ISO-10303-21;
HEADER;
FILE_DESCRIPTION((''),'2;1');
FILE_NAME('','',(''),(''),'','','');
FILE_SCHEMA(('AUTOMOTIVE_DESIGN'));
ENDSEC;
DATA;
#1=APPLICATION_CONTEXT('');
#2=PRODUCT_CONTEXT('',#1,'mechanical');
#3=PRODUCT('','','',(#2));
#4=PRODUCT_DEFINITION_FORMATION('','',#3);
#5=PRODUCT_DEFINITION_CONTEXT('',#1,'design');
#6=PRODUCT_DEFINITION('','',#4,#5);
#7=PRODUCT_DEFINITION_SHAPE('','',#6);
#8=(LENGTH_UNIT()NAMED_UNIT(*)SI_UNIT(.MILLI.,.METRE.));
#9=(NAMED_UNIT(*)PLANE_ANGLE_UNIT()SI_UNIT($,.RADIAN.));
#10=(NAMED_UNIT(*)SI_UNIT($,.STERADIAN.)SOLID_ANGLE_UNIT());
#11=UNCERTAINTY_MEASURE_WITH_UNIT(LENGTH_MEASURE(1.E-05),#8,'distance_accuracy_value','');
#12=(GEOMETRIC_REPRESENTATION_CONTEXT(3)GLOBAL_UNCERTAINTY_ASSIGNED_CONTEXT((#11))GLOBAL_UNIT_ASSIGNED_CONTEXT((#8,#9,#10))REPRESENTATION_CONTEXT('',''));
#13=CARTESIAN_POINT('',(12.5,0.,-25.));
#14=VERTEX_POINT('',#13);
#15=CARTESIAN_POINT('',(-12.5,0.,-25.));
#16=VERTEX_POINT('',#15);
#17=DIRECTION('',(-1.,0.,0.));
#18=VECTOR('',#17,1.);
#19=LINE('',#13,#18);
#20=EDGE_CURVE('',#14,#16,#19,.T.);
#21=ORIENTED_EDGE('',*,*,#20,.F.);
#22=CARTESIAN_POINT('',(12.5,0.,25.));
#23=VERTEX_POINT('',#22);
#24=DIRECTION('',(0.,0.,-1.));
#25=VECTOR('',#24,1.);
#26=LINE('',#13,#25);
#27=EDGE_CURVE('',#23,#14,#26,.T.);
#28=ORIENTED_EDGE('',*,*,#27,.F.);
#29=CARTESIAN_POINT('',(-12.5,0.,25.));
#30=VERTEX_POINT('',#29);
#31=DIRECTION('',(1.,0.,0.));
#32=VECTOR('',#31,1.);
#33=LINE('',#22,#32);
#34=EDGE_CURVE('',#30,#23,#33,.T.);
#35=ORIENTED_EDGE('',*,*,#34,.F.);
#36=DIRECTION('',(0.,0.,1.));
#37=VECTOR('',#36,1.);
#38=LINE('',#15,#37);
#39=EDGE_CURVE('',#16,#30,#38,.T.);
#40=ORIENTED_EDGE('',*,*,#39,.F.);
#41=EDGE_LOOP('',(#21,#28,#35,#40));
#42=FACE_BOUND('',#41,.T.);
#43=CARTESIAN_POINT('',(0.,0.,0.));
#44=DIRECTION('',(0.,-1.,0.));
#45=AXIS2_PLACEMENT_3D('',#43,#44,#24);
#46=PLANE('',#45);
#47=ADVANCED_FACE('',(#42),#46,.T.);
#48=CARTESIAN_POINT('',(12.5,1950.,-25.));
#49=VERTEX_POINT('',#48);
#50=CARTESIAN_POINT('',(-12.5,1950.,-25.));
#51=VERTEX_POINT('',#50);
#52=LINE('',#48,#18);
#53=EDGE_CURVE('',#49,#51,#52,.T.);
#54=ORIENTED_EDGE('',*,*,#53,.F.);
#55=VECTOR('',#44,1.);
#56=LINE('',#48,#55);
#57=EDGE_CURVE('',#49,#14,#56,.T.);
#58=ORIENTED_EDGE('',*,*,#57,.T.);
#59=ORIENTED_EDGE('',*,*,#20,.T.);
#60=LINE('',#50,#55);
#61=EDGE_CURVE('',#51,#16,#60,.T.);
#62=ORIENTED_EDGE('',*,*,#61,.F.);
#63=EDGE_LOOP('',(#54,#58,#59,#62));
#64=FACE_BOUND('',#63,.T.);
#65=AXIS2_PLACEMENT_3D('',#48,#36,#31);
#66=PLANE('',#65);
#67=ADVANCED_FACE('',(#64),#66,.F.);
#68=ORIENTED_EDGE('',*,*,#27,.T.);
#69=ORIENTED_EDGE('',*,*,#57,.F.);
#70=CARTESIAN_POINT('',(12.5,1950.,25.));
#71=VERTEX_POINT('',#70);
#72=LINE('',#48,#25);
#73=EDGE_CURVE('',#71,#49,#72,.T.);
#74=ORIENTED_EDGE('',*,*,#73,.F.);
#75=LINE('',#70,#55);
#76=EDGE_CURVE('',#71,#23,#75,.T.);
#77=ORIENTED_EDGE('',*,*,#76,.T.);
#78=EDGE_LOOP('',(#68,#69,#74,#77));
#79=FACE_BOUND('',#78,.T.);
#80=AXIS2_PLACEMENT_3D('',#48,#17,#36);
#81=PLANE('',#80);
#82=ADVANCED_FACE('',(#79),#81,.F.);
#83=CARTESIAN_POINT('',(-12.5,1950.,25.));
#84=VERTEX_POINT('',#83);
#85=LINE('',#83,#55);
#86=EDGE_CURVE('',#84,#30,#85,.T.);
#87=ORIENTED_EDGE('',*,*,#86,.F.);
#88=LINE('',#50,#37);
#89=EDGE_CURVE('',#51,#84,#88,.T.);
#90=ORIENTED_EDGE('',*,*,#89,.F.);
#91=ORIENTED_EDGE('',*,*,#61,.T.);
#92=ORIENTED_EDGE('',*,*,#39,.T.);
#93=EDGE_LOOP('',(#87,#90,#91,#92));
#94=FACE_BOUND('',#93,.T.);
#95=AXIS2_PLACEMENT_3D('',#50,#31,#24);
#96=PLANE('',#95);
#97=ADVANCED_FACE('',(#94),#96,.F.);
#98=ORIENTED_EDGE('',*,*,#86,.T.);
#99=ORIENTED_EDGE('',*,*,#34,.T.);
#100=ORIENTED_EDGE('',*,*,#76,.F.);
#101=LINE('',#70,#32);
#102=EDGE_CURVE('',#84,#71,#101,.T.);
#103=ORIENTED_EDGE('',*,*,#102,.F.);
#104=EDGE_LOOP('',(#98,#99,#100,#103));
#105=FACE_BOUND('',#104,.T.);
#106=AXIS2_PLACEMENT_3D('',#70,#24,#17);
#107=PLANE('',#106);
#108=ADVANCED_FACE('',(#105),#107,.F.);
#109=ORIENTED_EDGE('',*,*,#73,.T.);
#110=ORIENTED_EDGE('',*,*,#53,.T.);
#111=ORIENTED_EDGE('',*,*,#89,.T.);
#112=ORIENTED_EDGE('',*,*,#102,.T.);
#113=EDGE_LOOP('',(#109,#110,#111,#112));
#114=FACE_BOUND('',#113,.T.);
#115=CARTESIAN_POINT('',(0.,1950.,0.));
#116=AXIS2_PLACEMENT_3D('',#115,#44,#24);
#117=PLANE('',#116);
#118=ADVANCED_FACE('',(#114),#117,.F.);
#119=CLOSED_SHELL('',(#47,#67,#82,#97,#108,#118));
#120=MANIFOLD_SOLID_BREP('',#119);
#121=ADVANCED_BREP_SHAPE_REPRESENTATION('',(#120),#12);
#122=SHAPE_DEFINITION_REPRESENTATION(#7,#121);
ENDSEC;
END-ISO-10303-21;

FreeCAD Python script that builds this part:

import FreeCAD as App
import Part
import Sketcher
from FreeCAD import Vector

doc = App.newDocument("Part")
body = doc.addObject("PartDesign::Body", "Body")

# Sketch on XZ plane
sketch1 = body.newObject("Sketcher::SketchObject", "Sketch")
sketch1.AttachmentSupport = (doc.getObject("XZ_Plane"), [""])
sketch1.MapMode = "FlatFace"
sketch1.addGeometry(Part.LineSegment(Vector(-12.5, -25, 0), Vector(-12.5, 25, 0)), False)
sketch1.addGeometry(Part.LineSegment(Vector(-12.5, 25, 0), Vector(12.5, 25, 0)), False)
sketch1.addGeometry(Part.LineSegment(Vector(12.5, 25, 0), Vector(12.5, -25, 0)), False)
sketch1.addGeometry(Part.LineSegment(Vector(12.5, -25, 0), Vector(-12.5, -25, 0)), False)
sketch1.addConstraint(Sketcher.Constraint("Coincident", 0, 2, 1, 1))
sketch1.addConstraint(Sketcher.Constraint("Coincident", 1, 2, 2, 1))
sketch1.addConstraint(Sketcher.Constraint("Coincident", 2, 2, 3, 1))
sketch1.addConstraint(Sketcher.Constraint("Coincident", 3, 2, 0, 1))
sketch1.addConstraint(Sketcher.Constraint("Vertical", 0))
sketch1.addConstraint(Sketcher.Constraint("Horizontal", 1))
sketch1.addConstraint(Sketcher.Constraint("Vertical", 2))
sketch1.addConstraint(Sketcher.Constraint("Horizontal", 3))
sketch1.addConstraint(Sketcher.Constraint("Symmetric", 0, 2, 2, 2, -1, 1))
sketch1.addConstraint(Sketcher.Constraint("DistanceX", 1, 1, 1, 2, 25.0))
sketch1.addConstraint(Sketcher.Constraint("DistanceY", 0, 1, 0, 2, 50.0))
pad1 = body.newObject("PartDesign::Pad", "Pad")
pad1.Profile = sketch1
pad1.Length = 1950
pad1.Reversed = True

doc.recompute()
